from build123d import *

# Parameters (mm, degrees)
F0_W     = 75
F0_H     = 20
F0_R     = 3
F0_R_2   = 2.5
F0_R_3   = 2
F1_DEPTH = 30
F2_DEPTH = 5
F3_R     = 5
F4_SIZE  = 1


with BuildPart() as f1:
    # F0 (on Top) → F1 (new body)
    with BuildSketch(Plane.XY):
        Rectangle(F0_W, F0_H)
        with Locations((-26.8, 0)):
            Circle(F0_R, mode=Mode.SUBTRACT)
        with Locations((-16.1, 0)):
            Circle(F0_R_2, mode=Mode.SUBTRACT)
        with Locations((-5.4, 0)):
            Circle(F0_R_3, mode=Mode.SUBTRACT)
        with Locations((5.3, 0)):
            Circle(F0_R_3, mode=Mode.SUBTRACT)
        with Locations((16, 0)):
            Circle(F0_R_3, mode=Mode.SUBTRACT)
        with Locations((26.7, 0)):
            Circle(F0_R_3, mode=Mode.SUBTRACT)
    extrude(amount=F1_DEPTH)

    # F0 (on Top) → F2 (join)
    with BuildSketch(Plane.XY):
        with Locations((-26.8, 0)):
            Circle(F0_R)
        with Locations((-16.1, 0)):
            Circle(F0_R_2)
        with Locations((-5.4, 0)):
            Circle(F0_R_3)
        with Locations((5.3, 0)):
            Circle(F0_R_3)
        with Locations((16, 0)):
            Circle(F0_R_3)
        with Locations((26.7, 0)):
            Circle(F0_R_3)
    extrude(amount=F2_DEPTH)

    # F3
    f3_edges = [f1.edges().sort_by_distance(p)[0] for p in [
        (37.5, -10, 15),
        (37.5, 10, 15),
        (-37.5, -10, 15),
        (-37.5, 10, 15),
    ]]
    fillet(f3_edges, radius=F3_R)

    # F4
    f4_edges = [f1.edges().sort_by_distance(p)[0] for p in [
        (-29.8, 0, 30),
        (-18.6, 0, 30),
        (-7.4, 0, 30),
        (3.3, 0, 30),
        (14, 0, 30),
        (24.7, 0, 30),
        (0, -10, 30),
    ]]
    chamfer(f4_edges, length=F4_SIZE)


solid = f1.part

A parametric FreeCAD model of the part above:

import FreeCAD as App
import Part
import Sketcher

V = App.Vector


def edges_at(feature, points):
    """Names of the edges that pass closest to the given points."""
    edges = feature.Shape.Edges
    near = lambda p: min(range(len(edges)), key=lambda i: edges[i].distToShape(Part.Vertex(*p))[0])
    return sorted({f"Edge{near(p) + 1}" for p in points})

doc = App.newDocument("Part")
body = doc.addObject("PartDesign::Body", "Body")

# Sketch on XY plane
sketch1 = doc.addObject("Sketcher::SketchObject", "Sketch")
body.addObject(sketch1)
sketch1.AttachmentSupport = (doc.XY_Plane, [""])
sketch1.MapMode = "FlatFace"
sketch1.addGeometry(Part.LineSegment(V(-37.5, 10, 0), V(-37.5, -10, 0)), False)
sketch1.addGeometry(Part.LineSegment(V(-37.5, -10, 0), V(37.5, -10, 0)), False)
sketch1.addGeometry(Part.LineSegment(V(37.5, -10, 0), V(37.5, 10, 0)), False)
sketch1.addGeometry(Part.LineSegment(V(37.5, 10, 0), V(-37.5, 10, 0)), False)
sketch1.addGeometry(Part.Circle(V(-26.8, 0, 0), V(0, 0, 1), 3), False)
sketch1.addGeometry(Part.Circle(V(-16.1, 0, 0), V(0, 0, 1), 2.5), False)
sketch1.addGeometry(Part.Circle(V(-5.4, 0, 0), V(0, 0, 1), 2), False)
sketch1.addGeometry(Part.Circle(V(5.3, 0, 0), V(0, 0, 1), 2), False)
sketch1.addGeometry(Part.Circle(V(16, 0, 0), V(0, 0, 1), 2), False)
sketch1.addGeometry(Part.Circle(V(26.7, 0, 0), V(0, 0, 1), 2), False)
sketch1.addConstraint(Sketcher.Constraint("Coincident", 0, 2, 1, 1))
sketch1.addConstraint(Sketcher.Constraint("Coincident", 1, 2, 2, 1))
sketch1.addConstraint(Sketcher.Constraint("Coincident", 2, 2, 3, 1))
sketch1.addConstraint(Sketcher.Constraint("Coincident", 3, 2, 0, 1))
sketch1.addConstraint(Sketcher.Constraint("Vertical", 0))
sketch1.addConstraint(Sketcher.Constraint("Horizontal", 1))
sketch1.addConstraint(Sketcher.Constraint("Vertical", 2))
sketch1.addConstraint(Sketcher.Constraint("Horizontal", 3))
sketch1.addConstraint(Sketcher.Constraint("Equal", 6, 7))
sketch1.addConstraint(Sketcher.Constraint("Equal", 7, 8))
sketch1.addConstraint(Sketcher.Constraint("Equal", 8, 9))
sketch1.addConstraint(Sketcher.Constraint("Symmetric", 0, 2, 2, 2, -1, 1))
sketch1.addConstraint(Sketcher.Constraint("PointOnObject", 4, 3, -1))
sketch1.addConstraint(Sketcher.Constraint("PointOnObject", 5, 3, -1))
sketch1.addConstraint(Sketcher.Constraint("PointOnObject", 6, 3, -1))
sketch1.addConstraint(Sketcher.Constraint("PointOnObject", 7, 3, -1))
sketch1.addConstraint(Sketcher.Constraint("PointOnObject", 8, 3, -1))
sketch1.addConstraint(Sketcher.Constraint("PointOnObject", 9, 3, -1))
sketch1.addConstraint(Sketcher.Constraint("Diameter", 4, 6.0))
sketch1.addConstraint(Sketcher.Constraint("Diameter", 5, 5.0))
sketch1.addConstraint(Sketcher.Constraint("Diameter", 6, 4.0))
sketch1.addConstraint(Sketcher.Constraint("DistanceX", 1, 1, 1, 2, 75.0))
sketch1.addConstraint(Sketcher.Constraint("DistanceY", 0, 2, 0, 1, 20.0))
sketch1.addConstraint(Sketcher.Constraint("DistanceX", -1, 1, 8, 3, 16.0))
sketch1.addConstraint(Sketcher.Constraint("DistanceX", 4, 3, -1, 1, 26.8))
sketch1.addConstraint(Sketcher.Constraint("DistanceX", 5, 3, -1, 1, 16.1))
sketch1.addConstraint(Sketcher.Constraint("DistanceX", 6, 3, -1, 1, 5.4))
sketch1.addConstraint(Sketcher.Constraint("DistanceX", -1, 1, 7, 3, 5.3))
sketch1.addConstraint(Sketcher.Constraint("DistanceX", -1, 1, 9, 3, 26.7))
pad1 = doc.addObject("PartDesign::Pad", "Pad")
body.addObject(pad1)
pad1.Profile = sketch1
pad1.Length = 30

# Sketch on XY plane
sketch2 = doc.addObject("Sketcher::SketchObject", "Sketch001")
body.addObject(sketch2)
sketch2.AttachmentSupport = (doc.XY_Plane, [""])
sketch2.MapMode = "FlatFace"
sketch2.addGeometry(Part.Circle(V(-26.8, 0, 0), V(0, 0, 1), 3), False)
sketch2.addGeometry(Part.Circle(V(-16.1, 0, 0), V(0, 0, 1), 2.5), False)
sketch2.addGeometry(Part.Circle(V(-5.4, 0, 0), V(0, 0, 1), 2), False)
sketch2.addGeometry(Part.Circle(V(5.3, 0, 0), V(0, 0, 1), 2), False)
sketch2.addGeometry(Part.Circle(V(16, 0, 0), V(0, 0, 1), 2), False)
sketch2.addGeometry(Part.Circle(V(26.7, 0, 0), V(0, 0, 1), 2), False)
sketch2.addConstraint(Sketcher.Constraint("Equal", 2, 3))
sketch2.addConstraint(Sketcher.Constraint("Equal", 3, 4))
sketch2.addConstraint(Sketcher.Constraint("Equal", 4, 5))
sketch2.addConstraint(Sketcher.Constraint("PointOnObject", 0, 3, -1))
sketch2.addConstraint(Sketcher.Constraint("PointOnObject", 1, 3, -1))
sketch2.addConstraint(Sketcher.Constraint("PointOnObject", 2, 3, -1))
sketch2.addConstraint(Sketcher.Constraint("PointOnObject", 3, 3, -1))
sketch2.addConstraint(Sketcher.Constraint("PointOnObject", 4, 3, -1))
sketch2.addConstraint(Sketcher.Constraint("PointOnObject", 5, 3, -1))
sketch2.addConstraint(Sketcher.Constraint("Diameter", 0, 6.0))
sketch2.addConstraint(Sketcher.Constraint("Diameter", 1, 5.0))
sketch2.addConstraint(Sketcher.Constraint("Diameter", 2, 4.0))
sketch2.addConstraint(Sketcher.Constraint("DistanceX", -1, 1, 4, 3, 16.0))
sketch2.addConstraint(Sketcher.Constraint("DistanceX", 0, 3, -1, 1, 26.8))
sketch2.addConstraint(Sketcher.Constraint("DistanceX", 1, 3, -1, 1, 16.1))
sketch2.addConstraint(Sketcher.Constraint("DistanceX", 2, 3, -1, 1, 5.4))
sketch2.addConstraint(Sketcher.Constraint("DistanceX", -1, 1, 3, 3, 5.3))
sketch2.addConstraint(Sketcher.Constraint("DistanceX", -1, 1, 5, 3, 26.7))
pad2 = doc.addObject("PartDesign::Pad", "Pad001")
body.addObject(pad2)
pad2.Profile = sketch2
pad2.Length = 5
doc.recompute()

fillet = doc.addObject("PartDesign::Fillet", "Fillet")
body.addObject(fillet)
fillet.Base = (pad2, edges_at(pad2, [
    (37.5, -10, 15),
    (37.5, 10, 15),
    (-37.5, -10, 15),
    (-37.5, 10, 15),
]))
fillet.Radius = 5
doc.recompute()

chamfer = doc.addObject("PartDesign::Chamfer", "Chamfer")
body.addObject(chamfer)
chamfer.Base = (fillet, edges_at(fillet, [
    (-29.8, 0, 30),
    (-18.6, 0, 30),
    (-7.4, 0, 30),
    (3.3, 0, 30),
    (14, 0, 30),
    (24.7, 0, 30),
    (0, -10, 30),
]))
chamfer.Size = 1

doc.recompute()
